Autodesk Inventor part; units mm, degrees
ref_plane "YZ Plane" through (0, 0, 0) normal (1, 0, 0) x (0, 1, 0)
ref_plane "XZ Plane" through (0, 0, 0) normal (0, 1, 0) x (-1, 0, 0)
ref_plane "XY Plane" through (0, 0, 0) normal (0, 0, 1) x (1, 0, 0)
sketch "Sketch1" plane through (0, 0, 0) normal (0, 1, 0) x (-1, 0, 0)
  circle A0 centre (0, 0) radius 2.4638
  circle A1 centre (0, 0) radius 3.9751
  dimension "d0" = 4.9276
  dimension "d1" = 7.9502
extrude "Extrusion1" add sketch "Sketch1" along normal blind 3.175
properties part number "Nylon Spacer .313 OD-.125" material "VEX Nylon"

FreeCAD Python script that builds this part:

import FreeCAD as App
import Part
import Sketcher
Q = App.Units.Quantity

doc = App.newDocument("Part")
body = doc.addObject("PartDesign::Body", "Body")

sketch1 = doc.addObject("Sketcher::SketchObject", "Sketch")
body.addObject(sketch1)
sketch1.AttachmentSupport = (doc.XZ_Plane, [""])
sketch1.MapMode = "FlatFace"
sketch1.addGeometry(Part.Circle(App.Vector(0, 0, 0), App.Vector(0, 0, 1), 4), False)
sketch1.addGeometry(Part.Circle(App.Vector(0, 0, 0), App.Vector(0, 0, 1), 2.5), False)
sketch1.addConstraint(Sketcher.Constraint("Coincident", 0, 3, -1, 1))
sketch1.addConstraint(Sketcher.Constraint("Coincident", 1, 3, -1, 1))
sketch1.addConstraint(Sketcher.Constraint("Diameter", 0, Q("0.313 in")))
sketch1.addConstraint(Sketcher.Constraint("Diameter", 1, Q("0.194 in")))
pad1 = doc.addObject("PartDesign::Pad", "Pad")
body.addObject(pad1)
pad1.Profile = sketch1
pad1.Length = Q("0.125 in")
pad1.Reversed = True

doc.recompute()
